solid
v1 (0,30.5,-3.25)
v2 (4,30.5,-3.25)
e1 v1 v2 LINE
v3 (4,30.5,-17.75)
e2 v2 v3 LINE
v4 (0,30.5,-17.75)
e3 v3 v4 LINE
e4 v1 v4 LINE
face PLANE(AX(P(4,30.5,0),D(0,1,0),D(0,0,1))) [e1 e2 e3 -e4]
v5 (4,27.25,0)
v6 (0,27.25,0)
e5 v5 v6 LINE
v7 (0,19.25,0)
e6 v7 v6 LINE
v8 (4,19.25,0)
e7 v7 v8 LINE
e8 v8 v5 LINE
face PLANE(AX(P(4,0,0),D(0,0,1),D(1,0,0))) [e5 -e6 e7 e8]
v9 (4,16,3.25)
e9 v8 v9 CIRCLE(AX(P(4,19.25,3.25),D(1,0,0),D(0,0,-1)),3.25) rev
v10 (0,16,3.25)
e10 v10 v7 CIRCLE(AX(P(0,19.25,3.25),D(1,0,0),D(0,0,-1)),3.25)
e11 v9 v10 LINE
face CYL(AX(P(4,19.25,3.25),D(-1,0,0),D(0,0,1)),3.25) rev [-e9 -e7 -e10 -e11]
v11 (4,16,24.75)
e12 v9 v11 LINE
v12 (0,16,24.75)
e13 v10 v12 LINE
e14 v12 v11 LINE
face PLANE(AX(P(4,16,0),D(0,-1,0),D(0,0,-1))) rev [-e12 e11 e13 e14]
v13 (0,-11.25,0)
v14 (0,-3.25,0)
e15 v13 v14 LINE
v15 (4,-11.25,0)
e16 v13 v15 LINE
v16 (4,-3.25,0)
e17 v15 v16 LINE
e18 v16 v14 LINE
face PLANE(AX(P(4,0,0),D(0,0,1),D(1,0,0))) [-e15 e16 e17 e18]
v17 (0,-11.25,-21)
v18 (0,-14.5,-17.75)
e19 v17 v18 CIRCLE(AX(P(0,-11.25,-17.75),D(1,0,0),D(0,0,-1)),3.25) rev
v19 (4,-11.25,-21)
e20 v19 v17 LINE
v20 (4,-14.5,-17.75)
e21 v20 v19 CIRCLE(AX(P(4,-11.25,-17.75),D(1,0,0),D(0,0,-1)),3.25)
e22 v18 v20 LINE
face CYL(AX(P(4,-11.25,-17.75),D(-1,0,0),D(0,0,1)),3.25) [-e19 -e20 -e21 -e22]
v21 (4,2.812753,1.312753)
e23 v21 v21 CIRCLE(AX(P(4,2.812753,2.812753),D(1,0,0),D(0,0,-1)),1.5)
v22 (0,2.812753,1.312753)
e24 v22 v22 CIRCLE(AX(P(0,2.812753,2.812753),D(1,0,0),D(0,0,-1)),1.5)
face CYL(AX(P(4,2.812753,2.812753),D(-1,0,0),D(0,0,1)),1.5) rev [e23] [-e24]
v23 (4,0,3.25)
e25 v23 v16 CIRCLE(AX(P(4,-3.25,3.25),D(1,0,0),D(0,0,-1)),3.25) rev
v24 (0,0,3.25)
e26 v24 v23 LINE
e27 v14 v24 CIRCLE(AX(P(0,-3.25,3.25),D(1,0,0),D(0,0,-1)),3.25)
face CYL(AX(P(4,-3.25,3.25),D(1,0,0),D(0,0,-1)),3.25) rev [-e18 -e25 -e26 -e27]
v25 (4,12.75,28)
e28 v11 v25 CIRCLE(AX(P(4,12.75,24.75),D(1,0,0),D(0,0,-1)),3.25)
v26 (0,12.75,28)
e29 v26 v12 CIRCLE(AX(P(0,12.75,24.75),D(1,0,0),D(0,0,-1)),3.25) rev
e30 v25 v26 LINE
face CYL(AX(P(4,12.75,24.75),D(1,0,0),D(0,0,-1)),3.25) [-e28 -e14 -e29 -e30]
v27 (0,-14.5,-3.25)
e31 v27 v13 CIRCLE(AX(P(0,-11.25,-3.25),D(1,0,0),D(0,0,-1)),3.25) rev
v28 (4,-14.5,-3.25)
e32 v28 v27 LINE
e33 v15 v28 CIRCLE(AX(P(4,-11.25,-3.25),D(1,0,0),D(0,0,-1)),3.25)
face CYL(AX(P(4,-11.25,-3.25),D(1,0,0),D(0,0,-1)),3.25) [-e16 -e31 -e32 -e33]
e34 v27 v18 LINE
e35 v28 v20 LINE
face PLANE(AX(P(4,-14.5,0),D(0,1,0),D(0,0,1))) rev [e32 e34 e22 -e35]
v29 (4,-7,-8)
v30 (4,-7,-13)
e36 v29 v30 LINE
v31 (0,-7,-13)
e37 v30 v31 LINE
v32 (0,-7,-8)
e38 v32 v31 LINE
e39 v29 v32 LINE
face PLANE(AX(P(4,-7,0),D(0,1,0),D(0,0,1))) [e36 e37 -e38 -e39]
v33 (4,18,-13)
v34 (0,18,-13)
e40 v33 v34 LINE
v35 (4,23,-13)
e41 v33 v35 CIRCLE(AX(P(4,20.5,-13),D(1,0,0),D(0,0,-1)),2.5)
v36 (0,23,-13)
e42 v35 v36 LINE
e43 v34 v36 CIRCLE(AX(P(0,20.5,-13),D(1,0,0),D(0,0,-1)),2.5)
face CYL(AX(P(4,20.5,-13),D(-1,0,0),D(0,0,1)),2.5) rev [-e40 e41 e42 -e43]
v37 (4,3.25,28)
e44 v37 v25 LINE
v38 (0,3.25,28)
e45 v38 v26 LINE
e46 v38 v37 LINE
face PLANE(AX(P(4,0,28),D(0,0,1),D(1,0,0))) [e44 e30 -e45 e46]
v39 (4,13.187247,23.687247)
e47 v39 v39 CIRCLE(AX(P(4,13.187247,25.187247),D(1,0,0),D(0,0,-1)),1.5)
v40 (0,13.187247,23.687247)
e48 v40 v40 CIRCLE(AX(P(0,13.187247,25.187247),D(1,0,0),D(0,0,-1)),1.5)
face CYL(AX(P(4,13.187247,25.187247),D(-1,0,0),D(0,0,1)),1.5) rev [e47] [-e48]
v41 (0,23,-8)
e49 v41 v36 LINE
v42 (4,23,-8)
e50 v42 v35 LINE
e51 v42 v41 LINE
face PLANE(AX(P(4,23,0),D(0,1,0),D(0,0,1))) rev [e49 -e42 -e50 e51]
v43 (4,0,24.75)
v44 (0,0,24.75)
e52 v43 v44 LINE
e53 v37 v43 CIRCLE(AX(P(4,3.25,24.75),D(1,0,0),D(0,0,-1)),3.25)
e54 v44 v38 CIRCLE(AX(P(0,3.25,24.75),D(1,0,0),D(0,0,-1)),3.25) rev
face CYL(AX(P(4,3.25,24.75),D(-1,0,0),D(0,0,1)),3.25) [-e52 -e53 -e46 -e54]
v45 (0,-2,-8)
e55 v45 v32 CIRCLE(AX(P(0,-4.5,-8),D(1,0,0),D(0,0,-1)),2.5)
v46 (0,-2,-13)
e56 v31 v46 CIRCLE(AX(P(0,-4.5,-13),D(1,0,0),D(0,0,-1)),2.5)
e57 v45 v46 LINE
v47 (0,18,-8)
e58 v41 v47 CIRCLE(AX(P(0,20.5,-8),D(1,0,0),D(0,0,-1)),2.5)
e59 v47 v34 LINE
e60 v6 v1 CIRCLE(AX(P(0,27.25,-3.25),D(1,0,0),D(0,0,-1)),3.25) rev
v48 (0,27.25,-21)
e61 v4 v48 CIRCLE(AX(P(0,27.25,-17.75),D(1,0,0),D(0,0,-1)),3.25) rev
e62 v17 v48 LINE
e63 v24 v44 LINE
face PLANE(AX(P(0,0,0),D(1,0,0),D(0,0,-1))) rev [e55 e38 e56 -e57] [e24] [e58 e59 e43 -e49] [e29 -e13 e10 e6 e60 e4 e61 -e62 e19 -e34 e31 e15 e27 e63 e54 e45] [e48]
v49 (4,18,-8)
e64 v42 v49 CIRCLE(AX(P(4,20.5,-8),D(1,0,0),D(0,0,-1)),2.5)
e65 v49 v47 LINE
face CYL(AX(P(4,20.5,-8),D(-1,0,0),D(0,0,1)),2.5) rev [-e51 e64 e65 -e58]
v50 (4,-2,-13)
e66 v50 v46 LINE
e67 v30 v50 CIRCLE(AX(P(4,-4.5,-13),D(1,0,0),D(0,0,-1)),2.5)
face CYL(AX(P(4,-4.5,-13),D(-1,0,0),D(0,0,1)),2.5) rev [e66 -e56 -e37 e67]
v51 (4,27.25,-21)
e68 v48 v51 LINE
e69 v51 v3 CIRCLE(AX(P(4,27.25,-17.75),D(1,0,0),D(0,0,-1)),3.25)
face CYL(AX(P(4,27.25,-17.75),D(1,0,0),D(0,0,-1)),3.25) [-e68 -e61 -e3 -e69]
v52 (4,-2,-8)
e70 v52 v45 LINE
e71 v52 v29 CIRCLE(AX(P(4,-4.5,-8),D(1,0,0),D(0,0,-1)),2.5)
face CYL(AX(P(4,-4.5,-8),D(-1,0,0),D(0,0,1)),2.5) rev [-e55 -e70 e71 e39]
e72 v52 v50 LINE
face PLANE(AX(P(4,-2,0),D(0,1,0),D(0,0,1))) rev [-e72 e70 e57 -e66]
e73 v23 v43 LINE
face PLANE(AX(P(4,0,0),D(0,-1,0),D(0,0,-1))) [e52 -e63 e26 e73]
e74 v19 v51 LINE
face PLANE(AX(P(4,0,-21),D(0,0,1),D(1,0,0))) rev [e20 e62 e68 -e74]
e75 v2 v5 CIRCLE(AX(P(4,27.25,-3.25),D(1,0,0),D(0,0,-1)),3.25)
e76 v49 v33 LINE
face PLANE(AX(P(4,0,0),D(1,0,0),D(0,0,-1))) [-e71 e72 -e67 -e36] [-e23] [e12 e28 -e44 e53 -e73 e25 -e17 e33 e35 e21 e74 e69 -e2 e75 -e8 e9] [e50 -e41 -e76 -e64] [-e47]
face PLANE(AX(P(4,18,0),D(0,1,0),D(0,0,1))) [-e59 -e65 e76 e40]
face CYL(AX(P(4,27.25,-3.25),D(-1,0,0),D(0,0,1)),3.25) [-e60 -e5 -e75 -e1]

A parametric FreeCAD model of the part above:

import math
import FreeCAD as App
import Part
import Sketcher

V = App.Vector


def edges_at(feature, points):
    """Names of the edges that pass closest to the given points."""
    edges = feature.Shape.Edges
    near = lambda p: min(range(len(edges)), key=lambda i: edges[i].distToShape(Part.Vertex(*p))[0])
    return sorted({f"Edge{near(p) + 1}" for p in points})

doc = App.newDocument("Part")
params = doc.addObject("Spreadsheet::Sheet", "Params")
for row, (alias, value) in enumerate([
    ("sketch1_diameter", "3 mm"),
    ("sketch1_radius", "2.5 mm"),
    ("sketch1_width", "45 mm"),
    ("sketch1_width2", "16 mm"),
    ("sketch1_height", "28 mm"),
    ("pad1_length", "4 mm"),
    ("fillet_radius", "3.25 mm"),
], start=1):
    params.set(f"A{row}", alias)
    params.set(f"B{row}", "=" + value)
    params.setAlias(f"B{row}", alias)

body = doc.addObject("PartDesign::Body", "Body")

# Sketch on YZ plane
sketch1 = body.newObject("Sketcher::SketchObject", "Sketch")
sketch1.AttachmentSupport = (doc.getObject("YZ_Plane"), [""])
sketch1.MapMode = "FlatFace"
sketch1.addGeometry([
    Part.LineSegment(V(0, 28, 0), V(0, 0, 0)),  # 0
    Part.LineSegment(V(0, 0, 0), V(-14.5, 0, 0)),  # 1
    Part.LineSegment(V(-14.5, 0, 0), V(-14.5, -21, 0)),  # 2
    Part.LineSegment(V(-14.5, -21, 0), V(30.5, -21, 0)),  # 3
    Part.LineSegment(V(30.5, -21, 0), V(30.5, 0, 0)),  # 4
    Part.LineSegment(V(30.5, 0, 0), V(16, 0, 0)),  # 5
    Part.LineSegment(V(16, 0, 0), V(16, 28, 0)),  # 6
    Part.LineSegment(V(16, 28, 0), V(0, 28, 0)),  # 7
    Part.Circle(V(2.8, 2.8, 0), V(0, 0, 1), 1.5),  # 8
    Part.Circle(V(13.2, 25.2, 0), V(0, 0, 1), 1.5),  # 9
    Part.LineSegment(V(23, -8, 0), V(23, -13, 0)),  # 10
    Part.ArcOfCircle(Part.Circle(V(20.5, -13, 0), V(0, 0, 1), 2.5), math.radians(180), math.radians(360)),  # 11
    Part.LineSegment(V(18, -13, 0), V(18, -8, 0)),  # 12
    Part.ArcOfCircle(Part.Circle(V(20.5, -8, 0), V(0, 0, 1), 2.5), math.radians(0), math.radians(180)),  # 13
    Part.ArcOfCircle(Part.Circle(V(-4.5, -8, 0), V(0, 0, 1), 2.5), math.radians(0), math.radians(180)),  # 14
    Part.LineSegment(V(-2, -8, 0), V(-2, -13, 0)),  # 15
    Part.ArcOfCircle(Part.Circle(V(-4.5, -13, 0), V(0, 0, 1), 2.5), math.radians(180), math.radians(360)),  # 16
    Part.LineSegment(V(-7, -13, 0), V(-7, -8, 0)),  # 17
], False)
sketch1.addConstraint([
    Sketcher.Constraint("Coincident", 0, 2, 1, 1),
    Sketcher.Constraint("Coincident", 1, 2, 2, 1),
    Sketcher.Constraint("Coincident", 2, 2, 3, 1),
    Sketcher.Constraint("Coincident", 3, 2, 4, 1),
    Sketcher.Constraint("Coincident", 4, 2, 5, 1),
    Sketcher.Constraint("Coincident", 5, 2, 6, 1),
    Sketcher.Constraint("Coincident", 6, 2, 7, 1),
    Sketcher.Constraint("Coincident", 7, 2, 0, 1),
    Sketcher.Constraint("Tangent", 10, 2, 11, 2),
    Sketcher.Constraint("Tangent", 11, 1, 12, 1),
    Sketcher.Constraint("Tangent", 12, 2, 13, 2),
    Sketcher.Constraint("Tangent", 13, 1, 10, 1),
    Sketcher.Constraint("Tangent", 14, 1, 15, 1),
    Sketcher.Constraint("Tangent", 15, 2, 16, 2),
    Sketcher.Constraint("Tangent", 16, 1, 17, 1),
    Sketcher.Constraint("Tangent", 17, 2, 14, 2),
    Sketcher.Constraint("Vertical", 0),
    Sketcher.Constraint("Horizontal", 1),
    Sketcher.Constraint("Vertical", 2),
    Sketcher.Constraint("Horizontal", 3),
    Sketcher.Constraint("Vertical", 4),
    Sketcher.Constraint("Horizontal", 5),
    Sketcher.Constraint("Vertical", 6),
    Sketcher.Constraint("Horizontal", 7),
    Sketcher.Constraint("Vertical", 10),
    Sketcher.Constraint("Vertical", 12),
    Sketcher.Constraint("Vertical", 15),
    Sketcher.Constraint("Vertical", 17),
    Sketcher.Constraint("Coincident", 0, 2, -1, 1),
    Sketcher.Constraint("Equal", 8, 9),
    Sketcher.Constraint("Equal", 13, 14),
    Sketcher.Constraint("PointOnObject", 4, 2, -1),
    Sketcher.Constraint("Horizontal", 13, 3, 14, 3),
    Sketcher.Constraint("Horizontal", 11, 3, 16, 3),
    Sketcher.Constraint("Equal", 1, 5),
    Sketcher.Constraint("Diameter", 8, 3.0),
    Sketcher.Constraint("Radius", 11, 2.5),
    Sketcher.Constraint("DistanceX", 3, 1, 3, 2, 45.0),
    Sketcher.Constraint("DistanceX", 7, 2, 7, 1, 16.0),
    Sketcher.Constraint("DistanceY", 0, 2, 0, 1, 28.0),
    Sketcher.Constraint("DistanceY", 2, 2, 2, 1, 21.0),
    Sketcher.Constraint("DistanceY", 10, 2, 10, 1, 5.0),
    Sketcher.Constraint("DistanceY", 11, 3, -1, 1, 13.0),
    Sketcher.Constraint("DistanceX", -1, 1, 10, 2, 23.0),
    Sketcher.Constraint("DistanceX", 14, 1, -1, 1, 2.0),
    Sketcher.Constraint("DistanceX", -1, 1, 8, 3, 2.812753),
    Sketcher.Constraint("DistanceY", -1, 1, 8, 3, 2.812753),
    Sketcher.Constraint("DistanceX", -1, 1, 9, 3, 13.187247),
    Sketcher.Constraint("DistanceY", -1, 1, 9, 3, 25.187247),
])
sketch1.setExpression("Constraints[35]", "Params.sketch1_diameter")
sketch1.setExpression("Constraints[36]", "Params.sketch1_radius")
sketch1.setExpression("Constraints[37]", "Params.sketch1_width")
sketch1.setExpression("Constraints[38]", "Params.sketch1_width2")
sketch1.setExpression("Constraints[39]", "Params.sketch1_height")
pad1 = body.newObject("PartDesign::Pad", "Pad")
pad1.Profile = sketch1
pad1.setExpression("Length", "Params.pad1_length")
doc.recompute()

fillet = body.newObject("PartDesign::Fillet", "Fillet")
fillet.Base = (pad1, edges_at(pad1, [
    (2, 0, 28),
    (2, 16, 28),
    (2, 16, 0),
    (2, 30.5, 0),
    (2, 30.5, -21),
    (2, -14.5, -21),
    (2, -14.5, 0),
    (2, 0, 0),
]))
fillet.setExpression("Radius", "Params.fillet_radius")

doc.recompute()
